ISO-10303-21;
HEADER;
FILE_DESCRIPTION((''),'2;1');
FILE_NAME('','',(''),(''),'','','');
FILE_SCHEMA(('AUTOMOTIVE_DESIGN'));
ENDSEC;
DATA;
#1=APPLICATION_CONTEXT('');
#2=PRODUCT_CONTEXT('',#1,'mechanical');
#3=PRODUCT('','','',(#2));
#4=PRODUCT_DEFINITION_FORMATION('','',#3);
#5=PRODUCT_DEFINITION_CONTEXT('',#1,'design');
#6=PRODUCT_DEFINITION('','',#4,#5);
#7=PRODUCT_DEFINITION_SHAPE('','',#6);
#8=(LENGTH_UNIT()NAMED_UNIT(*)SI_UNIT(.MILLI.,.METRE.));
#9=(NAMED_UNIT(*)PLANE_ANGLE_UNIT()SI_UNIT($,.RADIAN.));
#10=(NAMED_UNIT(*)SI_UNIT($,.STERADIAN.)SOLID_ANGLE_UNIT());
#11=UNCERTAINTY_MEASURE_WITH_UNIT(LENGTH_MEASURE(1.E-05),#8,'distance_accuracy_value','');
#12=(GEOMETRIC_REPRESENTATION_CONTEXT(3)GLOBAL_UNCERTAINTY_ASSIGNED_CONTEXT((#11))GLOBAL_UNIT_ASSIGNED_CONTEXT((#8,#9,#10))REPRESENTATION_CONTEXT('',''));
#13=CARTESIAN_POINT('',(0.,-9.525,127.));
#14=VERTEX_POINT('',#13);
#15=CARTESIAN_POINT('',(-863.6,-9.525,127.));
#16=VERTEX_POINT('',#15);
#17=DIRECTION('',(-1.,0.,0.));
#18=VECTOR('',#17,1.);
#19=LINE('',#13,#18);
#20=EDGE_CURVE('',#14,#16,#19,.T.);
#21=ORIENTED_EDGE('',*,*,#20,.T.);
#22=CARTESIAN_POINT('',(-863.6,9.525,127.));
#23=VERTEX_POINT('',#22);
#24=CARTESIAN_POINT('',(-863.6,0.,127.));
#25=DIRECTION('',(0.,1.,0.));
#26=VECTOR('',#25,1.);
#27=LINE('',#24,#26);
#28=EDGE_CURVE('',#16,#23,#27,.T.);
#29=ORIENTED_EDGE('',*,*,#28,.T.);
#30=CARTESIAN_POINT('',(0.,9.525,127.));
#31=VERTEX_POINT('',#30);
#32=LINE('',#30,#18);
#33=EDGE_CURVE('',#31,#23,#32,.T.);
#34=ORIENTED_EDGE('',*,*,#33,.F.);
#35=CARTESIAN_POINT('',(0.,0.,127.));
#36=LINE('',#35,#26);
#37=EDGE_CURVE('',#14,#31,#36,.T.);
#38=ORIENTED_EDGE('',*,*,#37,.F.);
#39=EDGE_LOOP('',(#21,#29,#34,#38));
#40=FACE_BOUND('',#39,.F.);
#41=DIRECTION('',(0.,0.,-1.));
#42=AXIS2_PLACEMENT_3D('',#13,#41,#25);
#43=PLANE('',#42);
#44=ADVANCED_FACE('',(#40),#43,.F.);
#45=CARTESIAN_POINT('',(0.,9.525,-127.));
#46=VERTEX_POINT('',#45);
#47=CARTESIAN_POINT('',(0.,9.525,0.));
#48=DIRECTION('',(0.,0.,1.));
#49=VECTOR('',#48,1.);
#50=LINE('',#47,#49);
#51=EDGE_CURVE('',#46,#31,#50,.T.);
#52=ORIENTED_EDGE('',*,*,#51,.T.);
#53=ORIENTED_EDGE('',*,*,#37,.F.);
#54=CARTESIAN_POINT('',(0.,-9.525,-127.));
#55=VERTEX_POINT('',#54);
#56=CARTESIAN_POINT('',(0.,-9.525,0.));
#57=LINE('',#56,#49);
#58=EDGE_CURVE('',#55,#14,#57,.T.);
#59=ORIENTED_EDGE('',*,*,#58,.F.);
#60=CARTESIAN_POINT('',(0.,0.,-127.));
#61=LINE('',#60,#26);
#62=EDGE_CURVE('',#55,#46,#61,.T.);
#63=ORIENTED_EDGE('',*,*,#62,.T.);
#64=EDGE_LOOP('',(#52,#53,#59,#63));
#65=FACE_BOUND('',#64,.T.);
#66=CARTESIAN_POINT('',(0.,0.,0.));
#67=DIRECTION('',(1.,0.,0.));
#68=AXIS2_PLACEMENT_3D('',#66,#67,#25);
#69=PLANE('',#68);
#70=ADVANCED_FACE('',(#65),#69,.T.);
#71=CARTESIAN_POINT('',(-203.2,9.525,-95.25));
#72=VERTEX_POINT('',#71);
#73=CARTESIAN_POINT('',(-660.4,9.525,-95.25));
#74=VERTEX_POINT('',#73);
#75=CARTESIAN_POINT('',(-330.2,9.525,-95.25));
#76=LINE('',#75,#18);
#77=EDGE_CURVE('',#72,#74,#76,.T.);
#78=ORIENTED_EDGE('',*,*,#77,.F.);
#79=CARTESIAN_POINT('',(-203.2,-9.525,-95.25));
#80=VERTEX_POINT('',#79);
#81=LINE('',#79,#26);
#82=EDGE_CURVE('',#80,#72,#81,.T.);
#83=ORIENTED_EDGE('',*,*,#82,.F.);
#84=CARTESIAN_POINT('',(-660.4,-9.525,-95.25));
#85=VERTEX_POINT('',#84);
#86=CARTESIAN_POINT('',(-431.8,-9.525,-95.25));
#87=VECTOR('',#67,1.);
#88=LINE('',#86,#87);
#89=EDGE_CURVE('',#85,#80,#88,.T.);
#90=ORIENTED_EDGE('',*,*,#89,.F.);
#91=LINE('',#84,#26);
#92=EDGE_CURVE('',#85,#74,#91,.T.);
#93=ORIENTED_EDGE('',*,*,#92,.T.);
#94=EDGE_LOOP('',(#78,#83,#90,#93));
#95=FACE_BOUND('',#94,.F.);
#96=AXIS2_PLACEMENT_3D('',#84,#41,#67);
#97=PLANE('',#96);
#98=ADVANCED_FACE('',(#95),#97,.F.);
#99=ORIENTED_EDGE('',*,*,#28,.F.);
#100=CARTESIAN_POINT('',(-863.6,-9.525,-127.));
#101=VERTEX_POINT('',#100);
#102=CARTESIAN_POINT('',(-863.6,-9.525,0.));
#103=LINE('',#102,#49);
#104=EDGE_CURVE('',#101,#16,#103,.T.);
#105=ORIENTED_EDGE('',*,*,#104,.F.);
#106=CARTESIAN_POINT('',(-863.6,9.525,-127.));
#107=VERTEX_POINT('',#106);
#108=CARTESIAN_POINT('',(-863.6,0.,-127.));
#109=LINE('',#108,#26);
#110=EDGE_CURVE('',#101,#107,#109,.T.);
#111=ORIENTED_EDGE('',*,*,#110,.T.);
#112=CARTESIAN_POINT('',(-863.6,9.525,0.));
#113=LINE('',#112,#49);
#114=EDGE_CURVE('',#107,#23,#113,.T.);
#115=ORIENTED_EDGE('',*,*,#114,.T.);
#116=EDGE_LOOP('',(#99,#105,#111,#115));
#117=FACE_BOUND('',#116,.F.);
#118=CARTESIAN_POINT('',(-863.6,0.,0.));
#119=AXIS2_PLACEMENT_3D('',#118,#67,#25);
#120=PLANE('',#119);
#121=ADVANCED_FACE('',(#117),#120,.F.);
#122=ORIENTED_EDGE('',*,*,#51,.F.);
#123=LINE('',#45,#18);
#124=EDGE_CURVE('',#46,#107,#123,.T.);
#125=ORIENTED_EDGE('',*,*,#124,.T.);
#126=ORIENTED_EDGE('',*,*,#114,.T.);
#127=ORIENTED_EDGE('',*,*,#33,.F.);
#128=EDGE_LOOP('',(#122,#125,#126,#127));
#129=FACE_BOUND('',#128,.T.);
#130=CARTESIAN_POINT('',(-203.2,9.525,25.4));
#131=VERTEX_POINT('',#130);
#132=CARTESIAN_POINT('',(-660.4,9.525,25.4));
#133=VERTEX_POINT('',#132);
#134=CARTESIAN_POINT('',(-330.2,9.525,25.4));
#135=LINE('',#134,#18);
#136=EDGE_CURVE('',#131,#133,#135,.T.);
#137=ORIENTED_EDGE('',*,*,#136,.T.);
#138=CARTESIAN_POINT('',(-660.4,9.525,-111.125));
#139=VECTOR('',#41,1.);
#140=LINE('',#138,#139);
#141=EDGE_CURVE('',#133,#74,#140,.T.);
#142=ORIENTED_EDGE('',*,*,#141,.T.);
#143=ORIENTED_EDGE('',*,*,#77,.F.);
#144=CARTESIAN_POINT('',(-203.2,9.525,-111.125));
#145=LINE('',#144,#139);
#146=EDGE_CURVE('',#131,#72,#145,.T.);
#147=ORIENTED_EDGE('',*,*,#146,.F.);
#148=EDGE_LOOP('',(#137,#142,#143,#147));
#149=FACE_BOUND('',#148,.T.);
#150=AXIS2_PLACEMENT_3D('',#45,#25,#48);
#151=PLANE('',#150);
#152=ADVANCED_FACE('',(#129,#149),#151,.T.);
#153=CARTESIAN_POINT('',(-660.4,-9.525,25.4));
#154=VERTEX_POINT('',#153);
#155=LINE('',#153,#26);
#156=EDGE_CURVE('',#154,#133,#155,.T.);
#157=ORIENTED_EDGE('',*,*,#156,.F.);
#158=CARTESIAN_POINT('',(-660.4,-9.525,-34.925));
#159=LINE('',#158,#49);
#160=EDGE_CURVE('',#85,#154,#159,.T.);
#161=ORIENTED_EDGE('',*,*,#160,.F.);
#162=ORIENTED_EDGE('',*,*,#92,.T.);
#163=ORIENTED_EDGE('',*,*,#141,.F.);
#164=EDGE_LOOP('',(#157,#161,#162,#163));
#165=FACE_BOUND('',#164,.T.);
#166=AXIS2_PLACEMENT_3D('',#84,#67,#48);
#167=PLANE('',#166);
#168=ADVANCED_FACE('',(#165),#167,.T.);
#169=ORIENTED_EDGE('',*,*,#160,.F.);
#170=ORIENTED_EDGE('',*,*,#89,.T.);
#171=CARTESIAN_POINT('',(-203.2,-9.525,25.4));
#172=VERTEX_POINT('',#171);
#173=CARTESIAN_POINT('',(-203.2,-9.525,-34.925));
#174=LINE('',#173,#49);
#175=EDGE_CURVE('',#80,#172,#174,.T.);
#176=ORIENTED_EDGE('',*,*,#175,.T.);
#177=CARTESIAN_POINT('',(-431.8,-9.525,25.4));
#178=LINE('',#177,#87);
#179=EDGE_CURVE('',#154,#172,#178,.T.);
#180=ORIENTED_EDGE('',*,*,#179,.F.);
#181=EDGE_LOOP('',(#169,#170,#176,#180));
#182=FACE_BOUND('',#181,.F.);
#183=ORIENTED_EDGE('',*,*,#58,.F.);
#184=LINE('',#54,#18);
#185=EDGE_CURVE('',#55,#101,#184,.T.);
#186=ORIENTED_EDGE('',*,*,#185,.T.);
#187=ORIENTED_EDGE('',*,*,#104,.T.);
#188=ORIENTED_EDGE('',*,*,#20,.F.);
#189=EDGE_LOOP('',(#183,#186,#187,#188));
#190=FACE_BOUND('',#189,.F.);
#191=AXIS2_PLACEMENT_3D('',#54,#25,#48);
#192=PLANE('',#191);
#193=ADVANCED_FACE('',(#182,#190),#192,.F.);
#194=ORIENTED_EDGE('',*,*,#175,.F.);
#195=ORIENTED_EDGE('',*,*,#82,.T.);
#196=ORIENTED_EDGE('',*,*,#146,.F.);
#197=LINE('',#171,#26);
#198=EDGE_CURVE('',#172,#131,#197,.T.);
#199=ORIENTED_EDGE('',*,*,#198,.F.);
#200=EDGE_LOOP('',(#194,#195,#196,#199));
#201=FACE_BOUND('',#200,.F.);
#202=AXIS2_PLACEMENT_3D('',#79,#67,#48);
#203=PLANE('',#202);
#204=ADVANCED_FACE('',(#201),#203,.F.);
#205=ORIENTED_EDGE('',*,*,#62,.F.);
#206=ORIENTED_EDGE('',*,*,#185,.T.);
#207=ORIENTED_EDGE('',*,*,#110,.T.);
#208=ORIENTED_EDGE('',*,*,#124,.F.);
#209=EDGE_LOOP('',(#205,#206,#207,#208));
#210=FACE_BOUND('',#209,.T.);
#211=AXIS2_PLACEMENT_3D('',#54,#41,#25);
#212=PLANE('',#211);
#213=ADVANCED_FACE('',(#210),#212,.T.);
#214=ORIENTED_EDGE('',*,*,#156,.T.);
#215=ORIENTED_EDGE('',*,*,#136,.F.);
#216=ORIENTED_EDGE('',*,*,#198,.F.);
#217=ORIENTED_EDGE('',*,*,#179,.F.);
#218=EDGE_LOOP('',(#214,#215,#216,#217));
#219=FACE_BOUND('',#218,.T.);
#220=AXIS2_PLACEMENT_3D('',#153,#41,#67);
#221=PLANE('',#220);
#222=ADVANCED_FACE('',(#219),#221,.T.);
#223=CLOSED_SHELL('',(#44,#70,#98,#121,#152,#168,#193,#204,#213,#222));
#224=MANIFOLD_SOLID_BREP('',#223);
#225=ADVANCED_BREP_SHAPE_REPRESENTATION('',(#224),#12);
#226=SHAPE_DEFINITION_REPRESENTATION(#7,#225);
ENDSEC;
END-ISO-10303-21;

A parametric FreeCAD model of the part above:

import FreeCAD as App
import Part
import Sketcher
from FreeCAD import Vector
Q = App.Units.Quantity


def add_polygon(sketch, points):
    """Adds a closed chain of lines whose ends are joined by coincident constraints."""
    first, n = sketch.GeometryCount, len(points)
    for a, b in zip(points, points[1:] + points[:1]):
        sketch.addGeometry(Part.LineSegment(App.Vector(*a, 0), App.Vector(*b, 0)), False)
    for i in range(n):
        sketch.addConstraint(Sketcher.Constraint("Coincident", first + i, 2, first + (i + 1) % n, 1))

doc = App.newDocument("Part")
body = doc.addObject("PartDesign::Body", "Body")

sketch1 = body.newObject("Sketcher::SketchObject", "Sketch")
sketch1.AttachmentSupport = (doc.getObject("YZ_Plane"), [""])
sketch1.MapMode = "FlatFace"
add_polygon(sketch1, [(-9.525, 127), (-9.525, -127), (9.525, -127), (9.525, 127)])
sketch1.addConstraint([
    Sketcher.Constraint("Vertical", 0),
    Sketcher.Constraint("Horizontal", 1),
    Sketcher.Constraint("Vertical", 2),
    Sketcher.Constraint("Horizontal", 3),
    Sketcher.Constraint("Symmetric", 0, 2, 2, 2, -1, 1),
    Sketcher.Constraint("DistanceY", 0, 2, 0, 1, Q("10 in")),
    Sketcher.Constraint("DistanceX", 1, 1, 1, 2, Q("0.75 in")),
])
pad1 = body.newObject("PartDesign::Pad", "Pad")
pad1.Profile = sketch1
pad1.Length = Q("34 in")
pad1.Reversed = True

sketch2 = body.newObject("Sketcher::SketchObject", "Sketch001")
sketch2.AttachmentSupport = (doc.getObject("XZ_Plane"), [""])
sketch2.MapMode = "FlatFace"
sketch2.AttachmentOffset = App.Placement(Vector(0, 0, 0.375 * 25.4), App.Rotation())
add_polygon(sketch2, [(-660.4, 25.4), (-660.4, -95.25), (-203.2, -95.25), (-203.2, 25.4)])
sketch2.addConstraint([
    Sketcher.Constraint("Vertical", 0),
    Sketcher.Constraint("Horizontal", 1),
    Sketcher.Constraint("Vertical", 2),
    Sketcher.Constraint("Horizontal", 3),
    Sketcher.Constraint("DistanceX", 1, 1, 1, 2, Q("18 in")),
    Sketcher.Constraint("DistanceX", 0, 2, -1, 1, Q("26 in")),
    Sketcher.Constraint("DistanceY", -1, 1, 2, 2, Q("1 in")),
    Sketcher.Constraint("DistanceY", 0, 2, 0, 1, Q("4.75 in")),
])
pocket1 = body.newObject("PartDesign::Pocket", "Pocket")
pocket1.Profile = sketch2
pocket1.Type = "ThroughAll"

doc.recompute()
